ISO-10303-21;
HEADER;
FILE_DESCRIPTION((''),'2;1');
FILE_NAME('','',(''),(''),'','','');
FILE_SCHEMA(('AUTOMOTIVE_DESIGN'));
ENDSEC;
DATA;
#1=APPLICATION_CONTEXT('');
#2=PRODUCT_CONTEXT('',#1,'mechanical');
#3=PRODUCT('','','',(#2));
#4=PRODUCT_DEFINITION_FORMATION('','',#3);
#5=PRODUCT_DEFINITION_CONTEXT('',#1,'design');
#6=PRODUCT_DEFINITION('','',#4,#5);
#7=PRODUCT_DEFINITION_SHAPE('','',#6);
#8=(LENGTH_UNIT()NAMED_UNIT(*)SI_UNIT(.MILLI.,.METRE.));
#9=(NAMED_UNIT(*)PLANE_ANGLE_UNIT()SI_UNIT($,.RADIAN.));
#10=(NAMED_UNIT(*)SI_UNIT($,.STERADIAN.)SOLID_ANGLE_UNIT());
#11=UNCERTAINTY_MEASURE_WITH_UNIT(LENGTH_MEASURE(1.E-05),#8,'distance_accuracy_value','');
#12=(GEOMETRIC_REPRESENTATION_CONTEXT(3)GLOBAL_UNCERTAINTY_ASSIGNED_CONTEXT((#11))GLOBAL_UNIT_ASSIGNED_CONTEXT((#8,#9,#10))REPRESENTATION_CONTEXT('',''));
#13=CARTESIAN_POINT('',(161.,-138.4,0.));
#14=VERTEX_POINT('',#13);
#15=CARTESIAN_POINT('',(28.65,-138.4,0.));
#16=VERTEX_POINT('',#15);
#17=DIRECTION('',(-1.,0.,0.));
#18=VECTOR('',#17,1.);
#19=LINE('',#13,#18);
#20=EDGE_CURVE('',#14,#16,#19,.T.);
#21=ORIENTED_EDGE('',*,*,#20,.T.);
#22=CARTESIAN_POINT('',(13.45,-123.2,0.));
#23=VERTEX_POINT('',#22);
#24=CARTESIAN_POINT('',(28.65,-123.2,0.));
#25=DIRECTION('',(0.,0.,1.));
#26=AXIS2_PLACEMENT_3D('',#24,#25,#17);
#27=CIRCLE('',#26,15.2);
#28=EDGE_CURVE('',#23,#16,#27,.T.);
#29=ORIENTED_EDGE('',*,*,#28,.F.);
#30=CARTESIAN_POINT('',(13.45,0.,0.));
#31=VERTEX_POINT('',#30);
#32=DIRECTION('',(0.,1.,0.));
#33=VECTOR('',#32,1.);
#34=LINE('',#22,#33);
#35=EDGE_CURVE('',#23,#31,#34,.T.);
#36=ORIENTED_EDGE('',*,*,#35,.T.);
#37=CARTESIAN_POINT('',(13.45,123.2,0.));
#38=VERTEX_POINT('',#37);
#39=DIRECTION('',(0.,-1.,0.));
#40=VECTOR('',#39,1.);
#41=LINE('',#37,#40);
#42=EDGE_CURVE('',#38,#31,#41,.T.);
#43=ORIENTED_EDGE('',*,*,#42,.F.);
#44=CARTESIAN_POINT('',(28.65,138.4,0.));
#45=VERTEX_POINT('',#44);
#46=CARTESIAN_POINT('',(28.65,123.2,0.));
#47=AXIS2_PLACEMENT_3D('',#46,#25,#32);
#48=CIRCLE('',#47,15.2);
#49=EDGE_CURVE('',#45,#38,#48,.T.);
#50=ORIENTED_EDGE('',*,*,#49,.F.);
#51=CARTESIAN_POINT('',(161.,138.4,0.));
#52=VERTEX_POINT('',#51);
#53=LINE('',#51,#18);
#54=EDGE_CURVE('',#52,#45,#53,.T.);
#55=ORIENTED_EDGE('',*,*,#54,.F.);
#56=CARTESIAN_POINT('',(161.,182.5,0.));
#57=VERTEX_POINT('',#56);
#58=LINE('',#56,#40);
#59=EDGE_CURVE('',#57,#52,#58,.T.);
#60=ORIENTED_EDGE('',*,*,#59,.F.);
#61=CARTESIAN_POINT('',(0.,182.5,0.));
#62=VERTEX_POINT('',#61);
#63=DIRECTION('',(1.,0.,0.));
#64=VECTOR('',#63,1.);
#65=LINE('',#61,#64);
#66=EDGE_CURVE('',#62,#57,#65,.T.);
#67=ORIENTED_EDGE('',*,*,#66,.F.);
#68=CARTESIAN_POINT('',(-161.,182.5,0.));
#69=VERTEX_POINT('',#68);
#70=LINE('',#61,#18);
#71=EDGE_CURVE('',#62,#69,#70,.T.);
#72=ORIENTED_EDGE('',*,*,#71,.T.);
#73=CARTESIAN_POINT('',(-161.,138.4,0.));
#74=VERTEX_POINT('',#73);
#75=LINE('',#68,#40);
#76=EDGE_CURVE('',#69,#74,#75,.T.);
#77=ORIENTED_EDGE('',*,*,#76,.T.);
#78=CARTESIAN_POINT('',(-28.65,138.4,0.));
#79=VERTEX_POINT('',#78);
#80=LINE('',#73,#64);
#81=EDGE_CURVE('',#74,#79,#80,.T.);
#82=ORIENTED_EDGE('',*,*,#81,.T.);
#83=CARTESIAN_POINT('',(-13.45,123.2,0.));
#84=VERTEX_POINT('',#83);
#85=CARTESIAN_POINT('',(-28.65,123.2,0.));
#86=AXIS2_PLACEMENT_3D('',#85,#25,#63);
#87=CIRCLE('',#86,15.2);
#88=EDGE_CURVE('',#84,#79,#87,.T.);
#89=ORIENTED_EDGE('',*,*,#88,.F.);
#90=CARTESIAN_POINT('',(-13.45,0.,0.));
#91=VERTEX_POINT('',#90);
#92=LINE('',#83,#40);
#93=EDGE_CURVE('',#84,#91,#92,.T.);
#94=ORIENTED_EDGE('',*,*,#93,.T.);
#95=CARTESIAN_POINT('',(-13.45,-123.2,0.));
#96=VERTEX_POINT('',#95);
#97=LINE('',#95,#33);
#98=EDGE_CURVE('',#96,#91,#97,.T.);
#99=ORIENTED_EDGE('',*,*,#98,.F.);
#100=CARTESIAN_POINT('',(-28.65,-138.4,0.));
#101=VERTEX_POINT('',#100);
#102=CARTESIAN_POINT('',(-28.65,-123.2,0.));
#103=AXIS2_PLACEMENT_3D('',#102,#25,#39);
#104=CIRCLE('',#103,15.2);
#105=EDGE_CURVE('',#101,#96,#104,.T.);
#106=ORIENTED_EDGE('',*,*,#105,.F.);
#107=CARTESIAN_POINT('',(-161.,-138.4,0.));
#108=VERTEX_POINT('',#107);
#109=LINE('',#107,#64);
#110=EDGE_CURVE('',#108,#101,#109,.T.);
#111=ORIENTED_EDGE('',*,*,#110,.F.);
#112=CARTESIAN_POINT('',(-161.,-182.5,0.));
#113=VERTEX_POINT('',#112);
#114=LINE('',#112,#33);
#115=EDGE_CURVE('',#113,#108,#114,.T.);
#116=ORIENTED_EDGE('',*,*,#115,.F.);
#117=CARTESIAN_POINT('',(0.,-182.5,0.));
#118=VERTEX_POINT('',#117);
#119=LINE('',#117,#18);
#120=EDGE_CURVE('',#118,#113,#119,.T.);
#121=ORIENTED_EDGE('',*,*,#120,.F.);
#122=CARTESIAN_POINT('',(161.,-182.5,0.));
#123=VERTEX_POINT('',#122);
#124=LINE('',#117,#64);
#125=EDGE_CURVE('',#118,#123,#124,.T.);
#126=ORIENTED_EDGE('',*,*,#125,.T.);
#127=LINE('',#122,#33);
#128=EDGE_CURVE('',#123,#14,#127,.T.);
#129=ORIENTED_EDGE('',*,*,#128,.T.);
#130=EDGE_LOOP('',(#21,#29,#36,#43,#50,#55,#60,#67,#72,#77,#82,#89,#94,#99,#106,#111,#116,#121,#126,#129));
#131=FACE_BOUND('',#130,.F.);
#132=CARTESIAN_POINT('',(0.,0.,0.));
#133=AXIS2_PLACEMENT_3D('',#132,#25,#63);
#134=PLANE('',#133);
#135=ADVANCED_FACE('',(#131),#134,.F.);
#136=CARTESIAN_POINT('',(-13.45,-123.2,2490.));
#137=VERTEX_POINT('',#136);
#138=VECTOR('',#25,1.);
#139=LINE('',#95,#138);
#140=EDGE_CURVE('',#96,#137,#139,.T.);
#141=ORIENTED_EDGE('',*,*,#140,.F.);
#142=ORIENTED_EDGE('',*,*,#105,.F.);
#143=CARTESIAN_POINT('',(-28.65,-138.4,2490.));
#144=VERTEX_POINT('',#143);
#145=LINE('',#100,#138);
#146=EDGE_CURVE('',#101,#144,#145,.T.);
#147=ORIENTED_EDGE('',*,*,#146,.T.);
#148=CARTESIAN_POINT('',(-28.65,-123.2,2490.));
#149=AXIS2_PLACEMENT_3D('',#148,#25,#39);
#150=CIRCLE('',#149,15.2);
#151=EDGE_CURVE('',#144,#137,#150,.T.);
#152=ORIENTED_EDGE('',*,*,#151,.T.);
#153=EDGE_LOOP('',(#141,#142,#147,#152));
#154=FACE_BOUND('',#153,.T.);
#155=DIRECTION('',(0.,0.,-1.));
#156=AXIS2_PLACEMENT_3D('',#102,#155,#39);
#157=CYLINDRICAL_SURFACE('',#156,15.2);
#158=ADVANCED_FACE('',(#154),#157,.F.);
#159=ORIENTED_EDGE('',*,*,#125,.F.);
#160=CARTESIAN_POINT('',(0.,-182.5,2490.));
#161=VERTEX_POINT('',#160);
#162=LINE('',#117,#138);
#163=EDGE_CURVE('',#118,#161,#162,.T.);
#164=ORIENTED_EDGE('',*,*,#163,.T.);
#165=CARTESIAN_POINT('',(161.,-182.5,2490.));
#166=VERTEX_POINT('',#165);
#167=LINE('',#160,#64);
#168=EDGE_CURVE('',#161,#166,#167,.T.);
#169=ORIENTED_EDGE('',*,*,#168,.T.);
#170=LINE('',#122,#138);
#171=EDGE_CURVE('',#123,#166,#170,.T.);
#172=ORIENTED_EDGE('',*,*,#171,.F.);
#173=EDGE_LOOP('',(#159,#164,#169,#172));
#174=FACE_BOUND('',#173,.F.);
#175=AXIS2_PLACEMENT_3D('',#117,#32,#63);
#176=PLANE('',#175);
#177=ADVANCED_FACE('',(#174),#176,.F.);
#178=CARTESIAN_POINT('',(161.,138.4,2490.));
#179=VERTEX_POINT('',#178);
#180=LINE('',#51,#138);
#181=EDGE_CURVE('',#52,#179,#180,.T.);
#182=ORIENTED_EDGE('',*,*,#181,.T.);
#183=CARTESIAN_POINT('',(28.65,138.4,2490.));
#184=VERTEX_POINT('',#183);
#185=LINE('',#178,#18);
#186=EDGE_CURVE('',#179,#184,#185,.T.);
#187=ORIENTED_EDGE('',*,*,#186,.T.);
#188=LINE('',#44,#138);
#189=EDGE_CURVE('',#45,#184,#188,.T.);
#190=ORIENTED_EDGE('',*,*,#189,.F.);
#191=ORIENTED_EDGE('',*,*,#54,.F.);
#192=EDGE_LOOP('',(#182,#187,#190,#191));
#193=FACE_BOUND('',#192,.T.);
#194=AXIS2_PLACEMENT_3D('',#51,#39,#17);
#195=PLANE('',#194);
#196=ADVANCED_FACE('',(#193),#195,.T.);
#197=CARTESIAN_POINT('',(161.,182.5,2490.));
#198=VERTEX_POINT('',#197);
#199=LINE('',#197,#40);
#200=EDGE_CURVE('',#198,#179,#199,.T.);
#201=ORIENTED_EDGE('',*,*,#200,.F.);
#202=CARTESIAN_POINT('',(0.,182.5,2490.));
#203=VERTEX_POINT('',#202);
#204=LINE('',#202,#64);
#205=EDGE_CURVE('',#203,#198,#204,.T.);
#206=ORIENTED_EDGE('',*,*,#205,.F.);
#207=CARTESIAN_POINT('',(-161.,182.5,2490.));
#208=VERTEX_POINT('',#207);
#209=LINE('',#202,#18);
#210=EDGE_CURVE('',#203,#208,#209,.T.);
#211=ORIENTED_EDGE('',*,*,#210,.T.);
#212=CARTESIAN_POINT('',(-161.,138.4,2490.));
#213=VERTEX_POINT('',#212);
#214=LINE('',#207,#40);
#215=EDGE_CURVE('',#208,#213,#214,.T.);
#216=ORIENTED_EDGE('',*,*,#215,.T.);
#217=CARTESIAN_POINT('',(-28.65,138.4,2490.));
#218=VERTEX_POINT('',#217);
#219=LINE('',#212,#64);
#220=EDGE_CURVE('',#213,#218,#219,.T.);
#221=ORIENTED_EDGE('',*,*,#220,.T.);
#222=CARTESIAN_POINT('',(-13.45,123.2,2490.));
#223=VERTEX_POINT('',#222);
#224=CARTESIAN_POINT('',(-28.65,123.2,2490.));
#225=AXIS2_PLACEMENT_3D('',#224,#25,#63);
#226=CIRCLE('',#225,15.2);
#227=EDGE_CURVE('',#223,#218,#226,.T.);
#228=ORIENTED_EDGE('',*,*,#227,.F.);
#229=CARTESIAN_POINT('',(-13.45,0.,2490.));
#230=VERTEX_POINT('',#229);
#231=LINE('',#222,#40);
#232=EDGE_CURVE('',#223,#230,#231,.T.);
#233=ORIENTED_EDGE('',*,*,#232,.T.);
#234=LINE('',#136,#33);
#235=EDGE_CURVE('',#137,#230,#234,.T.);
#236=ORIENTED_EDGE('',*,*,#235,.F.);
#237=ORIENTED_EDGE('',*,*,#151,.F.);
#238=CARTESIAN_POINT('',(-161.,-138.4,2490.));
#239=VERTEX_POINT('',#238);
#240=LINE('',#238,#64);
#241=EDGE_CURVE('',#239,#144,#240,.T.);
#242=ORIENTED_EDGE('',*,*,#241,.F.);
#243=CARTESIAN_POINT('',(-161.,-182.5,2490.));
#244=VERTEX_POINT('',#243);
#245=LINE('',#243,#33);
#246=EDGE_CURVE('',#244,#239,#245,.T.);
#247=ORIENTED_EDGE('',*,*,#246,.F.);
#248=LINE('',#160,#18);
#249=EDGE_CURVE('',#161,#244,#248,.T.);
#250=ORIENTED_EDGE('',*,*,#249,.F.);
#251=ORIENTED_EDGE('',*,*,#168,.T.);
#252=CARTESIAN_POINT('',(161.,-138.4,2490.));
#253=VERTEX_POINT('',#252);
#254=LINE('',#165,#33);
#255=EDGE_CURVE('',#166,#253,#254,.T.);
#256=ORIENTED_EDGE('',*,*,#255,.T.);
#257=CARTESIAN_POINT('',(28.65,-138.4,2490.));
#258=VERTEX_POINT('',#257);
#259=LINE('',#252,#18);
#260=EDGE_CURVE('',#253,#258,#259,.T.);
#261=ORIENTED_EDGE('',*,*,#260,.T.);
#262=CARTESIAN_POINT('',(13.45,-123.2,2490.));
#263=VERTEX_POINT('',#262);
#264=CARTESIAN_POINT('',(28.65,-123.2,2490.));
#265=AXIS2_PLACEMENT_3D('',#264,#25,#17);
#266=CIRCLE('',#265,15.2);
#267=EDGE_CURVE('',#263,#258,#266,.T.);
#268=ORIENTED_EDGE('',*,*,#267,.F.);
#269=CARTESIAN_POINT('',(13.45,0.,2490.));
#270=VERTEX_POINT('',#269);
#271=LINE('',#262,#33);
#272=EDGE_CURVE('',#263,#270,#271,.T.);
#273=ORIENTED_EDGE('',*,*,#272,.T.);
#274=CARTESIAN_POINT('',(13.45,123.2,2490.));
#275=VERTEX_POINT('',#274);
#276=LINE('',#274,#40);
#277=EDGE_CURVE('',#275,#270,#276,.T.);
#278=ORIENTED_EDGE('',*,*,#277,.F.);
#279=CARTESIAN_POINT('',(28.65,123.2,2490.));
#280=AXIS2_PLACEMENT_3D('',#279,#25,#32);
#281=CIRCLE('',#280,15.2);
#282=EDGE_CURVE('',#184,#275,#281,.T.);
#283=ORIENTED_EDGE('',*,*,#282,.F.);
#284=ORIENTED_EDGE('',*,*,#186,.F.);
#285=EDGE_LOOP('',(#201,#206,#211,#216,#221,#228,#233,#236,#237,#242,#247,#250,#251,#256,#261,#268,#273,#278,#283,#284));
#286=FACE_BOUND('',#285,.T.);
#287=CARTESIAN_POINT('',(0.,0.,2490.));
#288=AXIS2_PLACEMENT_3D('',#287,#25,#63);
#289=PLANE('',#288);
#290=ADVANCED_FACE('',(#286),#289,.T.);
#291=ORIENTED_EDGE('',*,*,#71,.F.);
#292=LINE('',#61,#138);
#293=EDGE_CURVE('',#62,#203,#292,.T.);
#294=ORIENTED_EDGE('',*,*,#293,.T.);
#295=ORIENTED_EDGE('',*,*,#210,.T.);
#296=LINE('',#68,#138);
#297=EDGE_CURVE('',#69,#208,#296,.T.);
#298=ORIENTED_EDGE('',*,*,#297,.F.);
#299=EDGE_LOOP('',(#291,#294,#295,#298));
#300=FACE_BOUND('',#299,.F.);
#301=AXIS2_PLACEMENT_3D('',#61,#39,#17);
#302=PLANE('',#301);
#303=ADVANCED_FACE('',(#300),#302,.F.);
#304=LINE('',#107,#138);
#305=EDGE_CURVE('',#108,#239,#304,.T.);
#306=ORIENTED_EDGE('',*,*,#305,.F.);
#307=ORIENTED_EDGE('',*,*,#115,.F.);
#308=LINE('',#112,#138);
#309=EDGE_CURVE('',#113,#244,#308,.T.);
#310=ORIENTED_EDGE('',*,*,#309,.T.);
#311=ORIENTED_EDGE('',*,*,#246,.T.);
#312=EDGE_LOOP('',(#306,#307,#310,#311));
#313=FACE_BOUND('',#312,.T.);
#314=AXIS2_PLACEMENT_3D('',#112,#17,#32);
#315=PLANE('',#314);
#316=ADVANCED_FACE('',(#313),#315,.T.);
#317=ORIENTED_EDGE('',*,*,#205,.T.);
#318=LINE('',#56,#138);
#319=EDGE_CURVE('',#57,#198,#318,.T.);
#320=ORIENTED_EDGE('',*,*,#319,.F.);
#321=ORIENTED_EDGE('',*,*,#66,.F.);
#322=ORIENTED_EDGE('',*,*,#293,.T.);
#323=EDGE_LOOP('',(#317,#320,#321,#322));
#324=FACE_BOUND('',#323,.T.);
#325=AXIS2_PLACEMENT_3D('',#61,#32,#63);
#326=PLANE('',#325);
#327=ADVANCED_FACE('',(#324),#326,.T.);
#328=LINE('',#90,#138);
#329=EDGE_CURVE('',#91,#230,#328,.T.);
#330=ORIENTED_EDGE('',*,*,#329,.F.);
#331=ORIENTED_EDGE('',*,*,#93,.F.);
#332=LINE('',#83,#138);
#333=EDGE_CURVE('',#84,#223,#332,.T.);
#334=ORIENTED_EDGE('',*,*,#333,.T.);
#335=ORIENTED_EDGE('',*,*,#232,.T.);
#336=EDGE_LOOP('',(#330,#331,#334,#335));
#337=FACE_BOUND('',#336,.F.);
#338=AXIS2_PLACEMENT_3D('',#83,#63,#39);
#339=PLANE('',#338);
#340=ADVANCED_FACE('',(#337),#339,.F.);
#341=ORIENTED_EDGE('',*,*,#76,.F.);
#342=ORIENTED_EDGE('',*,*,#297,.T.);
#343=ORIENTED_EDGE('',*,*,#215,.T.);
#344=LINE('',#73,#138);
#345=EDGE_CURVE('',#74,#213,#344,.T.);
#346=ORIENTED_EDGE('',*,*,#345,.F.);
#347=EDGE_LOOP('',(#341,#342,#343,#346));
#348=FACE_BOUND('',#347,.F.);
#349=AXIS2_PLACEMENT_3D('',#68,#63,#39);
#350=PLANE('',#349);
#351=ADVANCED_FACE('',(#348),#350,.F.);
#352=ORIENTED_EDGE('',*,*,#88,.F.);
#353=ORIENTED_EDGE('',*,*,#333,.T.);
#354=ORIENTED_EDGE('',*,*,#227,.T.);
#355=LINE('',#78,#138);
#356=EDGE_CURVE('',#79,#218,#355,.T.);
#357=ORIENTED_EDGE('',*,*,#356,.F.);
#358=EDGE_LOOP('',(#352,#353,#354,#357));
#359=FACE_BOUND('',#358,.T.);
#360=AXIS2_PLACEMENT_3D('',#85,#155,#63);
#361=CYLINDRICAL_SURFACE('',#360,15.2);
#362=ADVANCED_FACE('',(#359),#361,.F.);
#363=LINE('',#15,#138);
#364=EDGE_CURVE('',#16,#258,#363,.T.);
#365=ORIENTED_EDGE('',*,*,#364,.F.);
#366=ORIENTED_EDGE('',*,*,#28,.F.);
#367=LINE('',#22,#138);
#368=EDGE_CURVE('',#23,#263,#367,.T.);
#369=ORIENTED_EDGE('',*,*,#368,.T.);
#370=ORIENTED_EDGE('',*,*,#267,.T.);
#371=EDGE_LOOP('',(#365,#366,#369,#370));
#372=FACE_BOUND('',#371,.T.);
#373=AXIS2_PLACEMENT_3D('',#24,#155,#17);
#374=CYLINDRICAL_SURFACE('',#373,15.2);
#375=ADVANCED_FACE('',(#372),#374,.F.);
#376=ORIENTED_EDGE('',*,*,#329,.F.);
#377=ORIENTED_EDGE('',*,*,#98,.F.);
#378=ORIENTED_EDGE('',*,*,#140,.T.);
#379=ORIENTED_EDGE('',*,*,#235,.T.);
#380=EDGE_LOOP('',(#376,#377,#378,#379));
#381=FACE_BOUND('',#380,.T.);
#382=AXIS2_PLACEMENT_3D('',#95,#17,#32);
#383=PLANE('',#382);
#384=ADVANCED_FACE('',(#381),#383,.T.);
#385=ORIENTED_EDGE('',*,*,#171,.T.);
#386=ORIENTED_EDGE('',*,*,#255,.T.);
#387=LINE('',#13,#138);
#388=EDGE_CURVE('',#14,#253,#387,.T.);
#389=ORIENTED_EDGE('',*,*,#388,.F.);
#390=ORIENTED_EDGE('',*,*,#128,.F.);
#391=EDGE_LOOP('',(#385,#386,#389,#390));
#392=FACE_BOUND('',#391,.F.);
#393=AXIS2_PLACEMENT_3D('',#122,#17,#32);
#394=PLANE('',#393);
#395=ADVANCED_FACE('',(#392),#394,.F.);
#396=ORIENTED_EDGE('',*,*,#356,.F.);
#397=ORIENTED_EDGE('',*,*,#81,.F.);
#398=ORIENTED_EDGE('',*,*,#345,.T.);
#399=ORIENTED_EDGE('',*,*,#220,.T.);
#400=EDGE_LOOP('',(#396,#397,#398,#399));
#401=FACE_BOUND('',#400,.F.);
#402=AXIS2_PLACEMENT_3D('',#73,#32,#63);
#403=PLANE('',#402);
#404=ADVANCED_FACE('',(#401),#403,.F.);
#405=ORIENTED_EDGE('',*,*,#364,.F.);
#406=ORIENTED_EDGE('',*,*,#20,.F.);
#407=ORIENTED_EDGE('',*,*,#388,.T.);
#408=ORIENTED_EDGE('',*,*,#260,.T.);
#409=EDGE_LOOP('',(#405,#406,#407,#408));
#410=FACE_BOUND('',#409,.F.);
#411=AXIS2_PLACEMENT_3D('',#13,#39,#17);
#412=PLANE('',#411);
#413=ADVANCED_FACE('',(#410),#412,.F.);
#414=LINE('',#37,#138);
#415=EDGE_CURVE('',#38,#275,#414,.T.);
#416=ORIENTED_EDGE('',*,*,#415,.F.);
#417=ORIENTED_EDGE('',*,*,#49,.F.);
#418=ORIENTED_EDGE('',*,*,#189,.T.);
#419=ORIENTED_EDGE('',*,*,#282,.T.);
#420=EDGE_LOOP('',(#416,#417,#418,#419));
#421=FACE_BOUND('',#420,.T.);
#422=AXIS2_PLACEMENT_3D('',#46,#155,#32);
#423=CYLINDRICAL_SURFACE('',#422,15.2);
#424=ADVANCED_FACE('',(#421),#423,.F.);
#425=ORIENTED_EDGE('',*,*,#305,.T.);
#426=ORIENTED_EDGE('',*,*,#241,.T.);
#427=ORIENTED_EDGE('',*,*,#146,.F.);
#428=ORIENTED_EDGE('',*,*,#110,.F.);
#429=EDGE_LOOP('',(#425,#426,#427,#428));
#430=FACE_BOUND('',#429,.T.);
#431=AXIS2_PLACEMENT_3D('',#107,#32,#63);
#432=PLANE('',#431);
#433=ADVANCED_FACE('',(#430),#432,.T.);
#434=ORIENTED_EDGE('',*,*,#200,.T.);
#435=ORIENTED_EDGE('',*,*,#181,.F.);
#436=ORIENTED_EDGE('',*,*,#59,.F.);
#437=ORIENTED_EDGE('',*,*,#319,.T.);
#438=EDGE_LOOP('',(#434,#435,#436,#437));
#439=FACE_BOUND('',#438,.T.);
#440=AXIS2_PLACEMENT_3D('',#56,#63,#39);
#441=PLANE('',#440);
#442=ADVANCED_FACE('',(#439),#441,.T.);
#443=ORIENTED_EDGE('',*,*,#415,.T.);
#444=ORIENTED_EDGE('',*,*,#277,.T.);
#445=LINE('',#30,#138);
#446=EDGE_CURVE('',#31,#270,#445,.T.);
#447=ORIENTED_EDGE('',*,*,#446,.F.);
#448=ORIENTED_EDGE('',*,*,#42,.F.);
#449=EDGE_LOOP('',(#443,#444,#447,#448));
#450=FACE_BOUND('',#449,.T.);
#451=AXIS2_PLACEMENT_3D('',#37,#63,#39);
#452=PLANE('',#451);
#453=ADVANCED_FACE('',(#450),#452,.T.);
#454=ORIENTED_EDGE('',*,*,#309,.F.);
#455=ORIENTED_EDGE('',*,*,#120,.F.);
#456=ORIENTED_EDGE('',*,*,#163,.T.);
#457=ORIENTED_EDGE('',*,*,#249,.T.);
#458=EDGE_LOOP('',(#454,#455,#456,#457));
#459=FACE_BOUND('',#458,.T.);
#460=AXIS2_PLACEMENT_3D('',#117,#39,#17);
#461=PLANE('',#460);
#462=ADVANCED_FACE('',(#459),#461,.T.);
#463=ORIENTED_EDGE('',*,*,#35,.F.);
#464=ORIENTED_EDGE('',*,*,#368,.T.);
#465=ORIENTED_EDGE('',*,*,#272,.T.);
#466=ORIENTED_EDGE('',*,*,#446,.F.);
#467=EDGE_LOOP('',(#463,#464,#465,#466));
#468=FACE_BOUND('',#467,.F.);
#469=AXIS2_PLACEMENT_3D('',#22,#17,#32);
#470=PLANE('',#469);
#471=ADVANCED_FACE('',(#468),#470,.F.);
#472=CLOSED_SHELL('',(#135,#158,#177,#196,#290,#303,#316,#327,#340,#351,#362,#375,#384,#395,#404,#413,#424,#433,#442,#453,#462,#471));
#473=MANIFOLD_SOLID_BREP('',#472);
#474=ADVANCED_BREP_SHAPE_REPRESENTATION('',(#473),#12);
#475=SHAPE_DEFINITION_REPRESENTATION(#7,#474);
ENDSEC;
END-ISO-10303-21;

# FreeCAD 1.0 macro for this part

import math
import FreeCAD as App
import Part
import Sketcher
Q = App.Units.Quantity

doc = App.newDocument("Part")
params = doc.addObject("Spreadsheet::Sheet", "Params")
for row, (alias, value) in enumerate([
    ("sketch1_radius", "15.2 mm"),
    ("sketch1_height", "44.1 mm"),
    ("pad1_length", "2490 mm"),
], start=1):
    params.set(f"A{row}", alias)
    params.set(f"B{row}", "=" + value)
    params.setAlias(f"B{row}", alias)

body = doc.addObject("PartDesign::Body", "Body")

# Sketch on XY plane
sketch1 = body.newObject("Sketcher::SketchObject", "Sketch")
sketch1.AttachmentSupport = (doc.getObject("XY_Plane"), [""])
sketch1.MapMode = "FlatFace"
sketch1.addGeometry([
    Part.LineSegment(App.Vector(-161, -138, 0), App.Vector(-161, -182, 0)),  # 0
    Part.LineSegment(App.Vector(-161, -182, 0), App.Vector(161, -182, 0)),  # 1
    Part.LineSegment(App.Vector(161, -182, 0), App.Vector(161, -138, 0)),  # 2
    Part.LineSegment(App.Vector(161, -138, 0), App.Vector(29, -138, 0)),  # 3
    Part.ArcOfCircle(Part.Circle(App.Vector(29, -123, 0), App.Vector(0, 0, 1), 15), math.radians(180), math.radians(270)),  # 4
    Part.LineSegment(App.Vector(13, -123, 0), App.Vector(13, 123, 0)),  # 5
    Part.ArcOfCircle(Part.Circle(App.Vector(29, 123, 0), App.Vector(0, 0, 1), 15), math.radians(90), math.radians(180)),  # 6
    Part.LineSegment(App.Vector(29, 138, 0), App.Vector(161, 138, 0)),  # 7
    Part.LineSegment(App.Vector(161, 138, 0), App.Vector(161, 182, 0)),  # 8
    Part.LineSegment(App.Vector(161, 182, 0), App.Vector(-161, 182, 0)),  # 9
    Part.LineSegment(App.Vector(-161, 182, 0), App.Vector(-161, 138, 0)),  # 10
    Part.LineSegment(App.Vector(-161, 138, 0), App.Vector(-29, 138, 0)),  # 11
    Part.ArcOfCircle(Part.Circle(App.Vector(-29, 123, 0), App.Vector(0, 0, 1), 15), math.radians(0), math.radians(90)),  # 12
    Part.LineSegment(App.Vector(-13, 123, 0), App.Vector(-13, -123, 0)),  # 13
    Part.ArcOfCircle(Part.Circle(App.Vector(-29, -123, 0), App.Vector(0, 0, 1), 15), math.radians(-90), math.radians(0)),  # 14
    Part.LineSegment(App.Vector(-29, -138, 0), App.Vector(-161, -138, 0)),  # 15
], False)
sketch1.addConstraint([
    Sketcher.Constraint("Coincident", 0, 2, 1, 1),
    Sketcher.Constraint("Coincident", 1, 2, 2, 1),
    Sketcher.Constraint("Coincident", 2, 2, 3, 1),
    Sketcher.Constraint("Tangent", 3, 2, 4, 2),
    Sketcher.Constraint("Tangent", 4, 1, 5, 1),
    Sketcher.Constraint("Tangent", 5, 2, 6, 2),
    Sketcher.Constraint("Tangent", 6, 1, 7, 1),
    Sketcher.Constraint("Coincident", 7, 2, 8, 1),
    Sketcher.Constraint("Coincident", 8, 2, 9, 1),
    Sketcher.Constraint("Coincident", 9, 2, 10, 1),
    Sketcher.Constraint("Coincident", 10, 2, 11, 1),
    Sketcher.Constraint("Tangent", 11, 2, 12, 2),
    Sketcher.Constraint("Tangent", 12, 1, 13, 1),
    Sketcher.Constraint("Tangent", 13, 2, 14, 2),
    Sketcher.Constraint("Tangent", 14, 1, 15, 1),
    Sketcher.Constraint("Coincident", 15, 2, 0, 1),
    Sketcher.Constraint("Vertical", 0),
    Sketcher.Constraint("Horizontal", 1),
    Sketcher.Constraint("Vertical", 2),
    Sketcher.Constraint("Horizontal", 3),
    Sketcher.Constraint("Vertical", 5),
    Sketcher.Constraint("Horizontal", 7),
    Sketcher.Constraint("Vertical", 8),
    Sketcher.Constraint("Horizontal", 9),
    Sketcher.Constraint("Vertical", 10),
    Sketcher.Constraint("Horizontal", 11),
    Sketcher.Constraint("Vertical", 13),
    Sketcher.Constraint("Horizontal", 15),
    Sketcher.Constraint("Equal", 4, 6),
    Sketcher.Constraint("Equal", 6, 12),
    Sketcher.Constraint("Equal", 12, 14),
    Sketcher.Constraint("Symmetric", 4, 3, 12, 3, -1, 1),
    Sketcher.Constraint("Symmetric", 0, 2, 8, 2, -1, 1),
    Sketcher.Constraint("Symmetric", 7, 2, 10, 2, -2),
    Sketcher.Constraint("Symmetric", 2, 2, 15, 2, -2),
    Sketcher.Constraint("Radius", 4, Q("15.2 mm")),
    Sketcher.Constraint("DistanceY", 0, 2, 0, 1, Q("44.1 mm")),
    Sketcher.Constraint("DistanceX", 0, 2, -1, 1, Q("161 mm")),
    Sketcher.Constraint("DistanceY", 0, 2, -1, 1, Q("182.5 mm")),
    Sketcher.Constraint("DistanceX", -1, 1, 4, 1, Q("13.45 mm")),
])
sketch1.setExpression("Constraints[35]", "Params.sketch1_radius")
sketch1.setExpression("Constraints[36]", "Params.sketch1_height")
pad1 = body.newObject("PartDesign::Pad", "Pad")
pad1.Profile = sketch1
pad1.setExpression("Length", "Params.pad1_length")

doc.recompute()
